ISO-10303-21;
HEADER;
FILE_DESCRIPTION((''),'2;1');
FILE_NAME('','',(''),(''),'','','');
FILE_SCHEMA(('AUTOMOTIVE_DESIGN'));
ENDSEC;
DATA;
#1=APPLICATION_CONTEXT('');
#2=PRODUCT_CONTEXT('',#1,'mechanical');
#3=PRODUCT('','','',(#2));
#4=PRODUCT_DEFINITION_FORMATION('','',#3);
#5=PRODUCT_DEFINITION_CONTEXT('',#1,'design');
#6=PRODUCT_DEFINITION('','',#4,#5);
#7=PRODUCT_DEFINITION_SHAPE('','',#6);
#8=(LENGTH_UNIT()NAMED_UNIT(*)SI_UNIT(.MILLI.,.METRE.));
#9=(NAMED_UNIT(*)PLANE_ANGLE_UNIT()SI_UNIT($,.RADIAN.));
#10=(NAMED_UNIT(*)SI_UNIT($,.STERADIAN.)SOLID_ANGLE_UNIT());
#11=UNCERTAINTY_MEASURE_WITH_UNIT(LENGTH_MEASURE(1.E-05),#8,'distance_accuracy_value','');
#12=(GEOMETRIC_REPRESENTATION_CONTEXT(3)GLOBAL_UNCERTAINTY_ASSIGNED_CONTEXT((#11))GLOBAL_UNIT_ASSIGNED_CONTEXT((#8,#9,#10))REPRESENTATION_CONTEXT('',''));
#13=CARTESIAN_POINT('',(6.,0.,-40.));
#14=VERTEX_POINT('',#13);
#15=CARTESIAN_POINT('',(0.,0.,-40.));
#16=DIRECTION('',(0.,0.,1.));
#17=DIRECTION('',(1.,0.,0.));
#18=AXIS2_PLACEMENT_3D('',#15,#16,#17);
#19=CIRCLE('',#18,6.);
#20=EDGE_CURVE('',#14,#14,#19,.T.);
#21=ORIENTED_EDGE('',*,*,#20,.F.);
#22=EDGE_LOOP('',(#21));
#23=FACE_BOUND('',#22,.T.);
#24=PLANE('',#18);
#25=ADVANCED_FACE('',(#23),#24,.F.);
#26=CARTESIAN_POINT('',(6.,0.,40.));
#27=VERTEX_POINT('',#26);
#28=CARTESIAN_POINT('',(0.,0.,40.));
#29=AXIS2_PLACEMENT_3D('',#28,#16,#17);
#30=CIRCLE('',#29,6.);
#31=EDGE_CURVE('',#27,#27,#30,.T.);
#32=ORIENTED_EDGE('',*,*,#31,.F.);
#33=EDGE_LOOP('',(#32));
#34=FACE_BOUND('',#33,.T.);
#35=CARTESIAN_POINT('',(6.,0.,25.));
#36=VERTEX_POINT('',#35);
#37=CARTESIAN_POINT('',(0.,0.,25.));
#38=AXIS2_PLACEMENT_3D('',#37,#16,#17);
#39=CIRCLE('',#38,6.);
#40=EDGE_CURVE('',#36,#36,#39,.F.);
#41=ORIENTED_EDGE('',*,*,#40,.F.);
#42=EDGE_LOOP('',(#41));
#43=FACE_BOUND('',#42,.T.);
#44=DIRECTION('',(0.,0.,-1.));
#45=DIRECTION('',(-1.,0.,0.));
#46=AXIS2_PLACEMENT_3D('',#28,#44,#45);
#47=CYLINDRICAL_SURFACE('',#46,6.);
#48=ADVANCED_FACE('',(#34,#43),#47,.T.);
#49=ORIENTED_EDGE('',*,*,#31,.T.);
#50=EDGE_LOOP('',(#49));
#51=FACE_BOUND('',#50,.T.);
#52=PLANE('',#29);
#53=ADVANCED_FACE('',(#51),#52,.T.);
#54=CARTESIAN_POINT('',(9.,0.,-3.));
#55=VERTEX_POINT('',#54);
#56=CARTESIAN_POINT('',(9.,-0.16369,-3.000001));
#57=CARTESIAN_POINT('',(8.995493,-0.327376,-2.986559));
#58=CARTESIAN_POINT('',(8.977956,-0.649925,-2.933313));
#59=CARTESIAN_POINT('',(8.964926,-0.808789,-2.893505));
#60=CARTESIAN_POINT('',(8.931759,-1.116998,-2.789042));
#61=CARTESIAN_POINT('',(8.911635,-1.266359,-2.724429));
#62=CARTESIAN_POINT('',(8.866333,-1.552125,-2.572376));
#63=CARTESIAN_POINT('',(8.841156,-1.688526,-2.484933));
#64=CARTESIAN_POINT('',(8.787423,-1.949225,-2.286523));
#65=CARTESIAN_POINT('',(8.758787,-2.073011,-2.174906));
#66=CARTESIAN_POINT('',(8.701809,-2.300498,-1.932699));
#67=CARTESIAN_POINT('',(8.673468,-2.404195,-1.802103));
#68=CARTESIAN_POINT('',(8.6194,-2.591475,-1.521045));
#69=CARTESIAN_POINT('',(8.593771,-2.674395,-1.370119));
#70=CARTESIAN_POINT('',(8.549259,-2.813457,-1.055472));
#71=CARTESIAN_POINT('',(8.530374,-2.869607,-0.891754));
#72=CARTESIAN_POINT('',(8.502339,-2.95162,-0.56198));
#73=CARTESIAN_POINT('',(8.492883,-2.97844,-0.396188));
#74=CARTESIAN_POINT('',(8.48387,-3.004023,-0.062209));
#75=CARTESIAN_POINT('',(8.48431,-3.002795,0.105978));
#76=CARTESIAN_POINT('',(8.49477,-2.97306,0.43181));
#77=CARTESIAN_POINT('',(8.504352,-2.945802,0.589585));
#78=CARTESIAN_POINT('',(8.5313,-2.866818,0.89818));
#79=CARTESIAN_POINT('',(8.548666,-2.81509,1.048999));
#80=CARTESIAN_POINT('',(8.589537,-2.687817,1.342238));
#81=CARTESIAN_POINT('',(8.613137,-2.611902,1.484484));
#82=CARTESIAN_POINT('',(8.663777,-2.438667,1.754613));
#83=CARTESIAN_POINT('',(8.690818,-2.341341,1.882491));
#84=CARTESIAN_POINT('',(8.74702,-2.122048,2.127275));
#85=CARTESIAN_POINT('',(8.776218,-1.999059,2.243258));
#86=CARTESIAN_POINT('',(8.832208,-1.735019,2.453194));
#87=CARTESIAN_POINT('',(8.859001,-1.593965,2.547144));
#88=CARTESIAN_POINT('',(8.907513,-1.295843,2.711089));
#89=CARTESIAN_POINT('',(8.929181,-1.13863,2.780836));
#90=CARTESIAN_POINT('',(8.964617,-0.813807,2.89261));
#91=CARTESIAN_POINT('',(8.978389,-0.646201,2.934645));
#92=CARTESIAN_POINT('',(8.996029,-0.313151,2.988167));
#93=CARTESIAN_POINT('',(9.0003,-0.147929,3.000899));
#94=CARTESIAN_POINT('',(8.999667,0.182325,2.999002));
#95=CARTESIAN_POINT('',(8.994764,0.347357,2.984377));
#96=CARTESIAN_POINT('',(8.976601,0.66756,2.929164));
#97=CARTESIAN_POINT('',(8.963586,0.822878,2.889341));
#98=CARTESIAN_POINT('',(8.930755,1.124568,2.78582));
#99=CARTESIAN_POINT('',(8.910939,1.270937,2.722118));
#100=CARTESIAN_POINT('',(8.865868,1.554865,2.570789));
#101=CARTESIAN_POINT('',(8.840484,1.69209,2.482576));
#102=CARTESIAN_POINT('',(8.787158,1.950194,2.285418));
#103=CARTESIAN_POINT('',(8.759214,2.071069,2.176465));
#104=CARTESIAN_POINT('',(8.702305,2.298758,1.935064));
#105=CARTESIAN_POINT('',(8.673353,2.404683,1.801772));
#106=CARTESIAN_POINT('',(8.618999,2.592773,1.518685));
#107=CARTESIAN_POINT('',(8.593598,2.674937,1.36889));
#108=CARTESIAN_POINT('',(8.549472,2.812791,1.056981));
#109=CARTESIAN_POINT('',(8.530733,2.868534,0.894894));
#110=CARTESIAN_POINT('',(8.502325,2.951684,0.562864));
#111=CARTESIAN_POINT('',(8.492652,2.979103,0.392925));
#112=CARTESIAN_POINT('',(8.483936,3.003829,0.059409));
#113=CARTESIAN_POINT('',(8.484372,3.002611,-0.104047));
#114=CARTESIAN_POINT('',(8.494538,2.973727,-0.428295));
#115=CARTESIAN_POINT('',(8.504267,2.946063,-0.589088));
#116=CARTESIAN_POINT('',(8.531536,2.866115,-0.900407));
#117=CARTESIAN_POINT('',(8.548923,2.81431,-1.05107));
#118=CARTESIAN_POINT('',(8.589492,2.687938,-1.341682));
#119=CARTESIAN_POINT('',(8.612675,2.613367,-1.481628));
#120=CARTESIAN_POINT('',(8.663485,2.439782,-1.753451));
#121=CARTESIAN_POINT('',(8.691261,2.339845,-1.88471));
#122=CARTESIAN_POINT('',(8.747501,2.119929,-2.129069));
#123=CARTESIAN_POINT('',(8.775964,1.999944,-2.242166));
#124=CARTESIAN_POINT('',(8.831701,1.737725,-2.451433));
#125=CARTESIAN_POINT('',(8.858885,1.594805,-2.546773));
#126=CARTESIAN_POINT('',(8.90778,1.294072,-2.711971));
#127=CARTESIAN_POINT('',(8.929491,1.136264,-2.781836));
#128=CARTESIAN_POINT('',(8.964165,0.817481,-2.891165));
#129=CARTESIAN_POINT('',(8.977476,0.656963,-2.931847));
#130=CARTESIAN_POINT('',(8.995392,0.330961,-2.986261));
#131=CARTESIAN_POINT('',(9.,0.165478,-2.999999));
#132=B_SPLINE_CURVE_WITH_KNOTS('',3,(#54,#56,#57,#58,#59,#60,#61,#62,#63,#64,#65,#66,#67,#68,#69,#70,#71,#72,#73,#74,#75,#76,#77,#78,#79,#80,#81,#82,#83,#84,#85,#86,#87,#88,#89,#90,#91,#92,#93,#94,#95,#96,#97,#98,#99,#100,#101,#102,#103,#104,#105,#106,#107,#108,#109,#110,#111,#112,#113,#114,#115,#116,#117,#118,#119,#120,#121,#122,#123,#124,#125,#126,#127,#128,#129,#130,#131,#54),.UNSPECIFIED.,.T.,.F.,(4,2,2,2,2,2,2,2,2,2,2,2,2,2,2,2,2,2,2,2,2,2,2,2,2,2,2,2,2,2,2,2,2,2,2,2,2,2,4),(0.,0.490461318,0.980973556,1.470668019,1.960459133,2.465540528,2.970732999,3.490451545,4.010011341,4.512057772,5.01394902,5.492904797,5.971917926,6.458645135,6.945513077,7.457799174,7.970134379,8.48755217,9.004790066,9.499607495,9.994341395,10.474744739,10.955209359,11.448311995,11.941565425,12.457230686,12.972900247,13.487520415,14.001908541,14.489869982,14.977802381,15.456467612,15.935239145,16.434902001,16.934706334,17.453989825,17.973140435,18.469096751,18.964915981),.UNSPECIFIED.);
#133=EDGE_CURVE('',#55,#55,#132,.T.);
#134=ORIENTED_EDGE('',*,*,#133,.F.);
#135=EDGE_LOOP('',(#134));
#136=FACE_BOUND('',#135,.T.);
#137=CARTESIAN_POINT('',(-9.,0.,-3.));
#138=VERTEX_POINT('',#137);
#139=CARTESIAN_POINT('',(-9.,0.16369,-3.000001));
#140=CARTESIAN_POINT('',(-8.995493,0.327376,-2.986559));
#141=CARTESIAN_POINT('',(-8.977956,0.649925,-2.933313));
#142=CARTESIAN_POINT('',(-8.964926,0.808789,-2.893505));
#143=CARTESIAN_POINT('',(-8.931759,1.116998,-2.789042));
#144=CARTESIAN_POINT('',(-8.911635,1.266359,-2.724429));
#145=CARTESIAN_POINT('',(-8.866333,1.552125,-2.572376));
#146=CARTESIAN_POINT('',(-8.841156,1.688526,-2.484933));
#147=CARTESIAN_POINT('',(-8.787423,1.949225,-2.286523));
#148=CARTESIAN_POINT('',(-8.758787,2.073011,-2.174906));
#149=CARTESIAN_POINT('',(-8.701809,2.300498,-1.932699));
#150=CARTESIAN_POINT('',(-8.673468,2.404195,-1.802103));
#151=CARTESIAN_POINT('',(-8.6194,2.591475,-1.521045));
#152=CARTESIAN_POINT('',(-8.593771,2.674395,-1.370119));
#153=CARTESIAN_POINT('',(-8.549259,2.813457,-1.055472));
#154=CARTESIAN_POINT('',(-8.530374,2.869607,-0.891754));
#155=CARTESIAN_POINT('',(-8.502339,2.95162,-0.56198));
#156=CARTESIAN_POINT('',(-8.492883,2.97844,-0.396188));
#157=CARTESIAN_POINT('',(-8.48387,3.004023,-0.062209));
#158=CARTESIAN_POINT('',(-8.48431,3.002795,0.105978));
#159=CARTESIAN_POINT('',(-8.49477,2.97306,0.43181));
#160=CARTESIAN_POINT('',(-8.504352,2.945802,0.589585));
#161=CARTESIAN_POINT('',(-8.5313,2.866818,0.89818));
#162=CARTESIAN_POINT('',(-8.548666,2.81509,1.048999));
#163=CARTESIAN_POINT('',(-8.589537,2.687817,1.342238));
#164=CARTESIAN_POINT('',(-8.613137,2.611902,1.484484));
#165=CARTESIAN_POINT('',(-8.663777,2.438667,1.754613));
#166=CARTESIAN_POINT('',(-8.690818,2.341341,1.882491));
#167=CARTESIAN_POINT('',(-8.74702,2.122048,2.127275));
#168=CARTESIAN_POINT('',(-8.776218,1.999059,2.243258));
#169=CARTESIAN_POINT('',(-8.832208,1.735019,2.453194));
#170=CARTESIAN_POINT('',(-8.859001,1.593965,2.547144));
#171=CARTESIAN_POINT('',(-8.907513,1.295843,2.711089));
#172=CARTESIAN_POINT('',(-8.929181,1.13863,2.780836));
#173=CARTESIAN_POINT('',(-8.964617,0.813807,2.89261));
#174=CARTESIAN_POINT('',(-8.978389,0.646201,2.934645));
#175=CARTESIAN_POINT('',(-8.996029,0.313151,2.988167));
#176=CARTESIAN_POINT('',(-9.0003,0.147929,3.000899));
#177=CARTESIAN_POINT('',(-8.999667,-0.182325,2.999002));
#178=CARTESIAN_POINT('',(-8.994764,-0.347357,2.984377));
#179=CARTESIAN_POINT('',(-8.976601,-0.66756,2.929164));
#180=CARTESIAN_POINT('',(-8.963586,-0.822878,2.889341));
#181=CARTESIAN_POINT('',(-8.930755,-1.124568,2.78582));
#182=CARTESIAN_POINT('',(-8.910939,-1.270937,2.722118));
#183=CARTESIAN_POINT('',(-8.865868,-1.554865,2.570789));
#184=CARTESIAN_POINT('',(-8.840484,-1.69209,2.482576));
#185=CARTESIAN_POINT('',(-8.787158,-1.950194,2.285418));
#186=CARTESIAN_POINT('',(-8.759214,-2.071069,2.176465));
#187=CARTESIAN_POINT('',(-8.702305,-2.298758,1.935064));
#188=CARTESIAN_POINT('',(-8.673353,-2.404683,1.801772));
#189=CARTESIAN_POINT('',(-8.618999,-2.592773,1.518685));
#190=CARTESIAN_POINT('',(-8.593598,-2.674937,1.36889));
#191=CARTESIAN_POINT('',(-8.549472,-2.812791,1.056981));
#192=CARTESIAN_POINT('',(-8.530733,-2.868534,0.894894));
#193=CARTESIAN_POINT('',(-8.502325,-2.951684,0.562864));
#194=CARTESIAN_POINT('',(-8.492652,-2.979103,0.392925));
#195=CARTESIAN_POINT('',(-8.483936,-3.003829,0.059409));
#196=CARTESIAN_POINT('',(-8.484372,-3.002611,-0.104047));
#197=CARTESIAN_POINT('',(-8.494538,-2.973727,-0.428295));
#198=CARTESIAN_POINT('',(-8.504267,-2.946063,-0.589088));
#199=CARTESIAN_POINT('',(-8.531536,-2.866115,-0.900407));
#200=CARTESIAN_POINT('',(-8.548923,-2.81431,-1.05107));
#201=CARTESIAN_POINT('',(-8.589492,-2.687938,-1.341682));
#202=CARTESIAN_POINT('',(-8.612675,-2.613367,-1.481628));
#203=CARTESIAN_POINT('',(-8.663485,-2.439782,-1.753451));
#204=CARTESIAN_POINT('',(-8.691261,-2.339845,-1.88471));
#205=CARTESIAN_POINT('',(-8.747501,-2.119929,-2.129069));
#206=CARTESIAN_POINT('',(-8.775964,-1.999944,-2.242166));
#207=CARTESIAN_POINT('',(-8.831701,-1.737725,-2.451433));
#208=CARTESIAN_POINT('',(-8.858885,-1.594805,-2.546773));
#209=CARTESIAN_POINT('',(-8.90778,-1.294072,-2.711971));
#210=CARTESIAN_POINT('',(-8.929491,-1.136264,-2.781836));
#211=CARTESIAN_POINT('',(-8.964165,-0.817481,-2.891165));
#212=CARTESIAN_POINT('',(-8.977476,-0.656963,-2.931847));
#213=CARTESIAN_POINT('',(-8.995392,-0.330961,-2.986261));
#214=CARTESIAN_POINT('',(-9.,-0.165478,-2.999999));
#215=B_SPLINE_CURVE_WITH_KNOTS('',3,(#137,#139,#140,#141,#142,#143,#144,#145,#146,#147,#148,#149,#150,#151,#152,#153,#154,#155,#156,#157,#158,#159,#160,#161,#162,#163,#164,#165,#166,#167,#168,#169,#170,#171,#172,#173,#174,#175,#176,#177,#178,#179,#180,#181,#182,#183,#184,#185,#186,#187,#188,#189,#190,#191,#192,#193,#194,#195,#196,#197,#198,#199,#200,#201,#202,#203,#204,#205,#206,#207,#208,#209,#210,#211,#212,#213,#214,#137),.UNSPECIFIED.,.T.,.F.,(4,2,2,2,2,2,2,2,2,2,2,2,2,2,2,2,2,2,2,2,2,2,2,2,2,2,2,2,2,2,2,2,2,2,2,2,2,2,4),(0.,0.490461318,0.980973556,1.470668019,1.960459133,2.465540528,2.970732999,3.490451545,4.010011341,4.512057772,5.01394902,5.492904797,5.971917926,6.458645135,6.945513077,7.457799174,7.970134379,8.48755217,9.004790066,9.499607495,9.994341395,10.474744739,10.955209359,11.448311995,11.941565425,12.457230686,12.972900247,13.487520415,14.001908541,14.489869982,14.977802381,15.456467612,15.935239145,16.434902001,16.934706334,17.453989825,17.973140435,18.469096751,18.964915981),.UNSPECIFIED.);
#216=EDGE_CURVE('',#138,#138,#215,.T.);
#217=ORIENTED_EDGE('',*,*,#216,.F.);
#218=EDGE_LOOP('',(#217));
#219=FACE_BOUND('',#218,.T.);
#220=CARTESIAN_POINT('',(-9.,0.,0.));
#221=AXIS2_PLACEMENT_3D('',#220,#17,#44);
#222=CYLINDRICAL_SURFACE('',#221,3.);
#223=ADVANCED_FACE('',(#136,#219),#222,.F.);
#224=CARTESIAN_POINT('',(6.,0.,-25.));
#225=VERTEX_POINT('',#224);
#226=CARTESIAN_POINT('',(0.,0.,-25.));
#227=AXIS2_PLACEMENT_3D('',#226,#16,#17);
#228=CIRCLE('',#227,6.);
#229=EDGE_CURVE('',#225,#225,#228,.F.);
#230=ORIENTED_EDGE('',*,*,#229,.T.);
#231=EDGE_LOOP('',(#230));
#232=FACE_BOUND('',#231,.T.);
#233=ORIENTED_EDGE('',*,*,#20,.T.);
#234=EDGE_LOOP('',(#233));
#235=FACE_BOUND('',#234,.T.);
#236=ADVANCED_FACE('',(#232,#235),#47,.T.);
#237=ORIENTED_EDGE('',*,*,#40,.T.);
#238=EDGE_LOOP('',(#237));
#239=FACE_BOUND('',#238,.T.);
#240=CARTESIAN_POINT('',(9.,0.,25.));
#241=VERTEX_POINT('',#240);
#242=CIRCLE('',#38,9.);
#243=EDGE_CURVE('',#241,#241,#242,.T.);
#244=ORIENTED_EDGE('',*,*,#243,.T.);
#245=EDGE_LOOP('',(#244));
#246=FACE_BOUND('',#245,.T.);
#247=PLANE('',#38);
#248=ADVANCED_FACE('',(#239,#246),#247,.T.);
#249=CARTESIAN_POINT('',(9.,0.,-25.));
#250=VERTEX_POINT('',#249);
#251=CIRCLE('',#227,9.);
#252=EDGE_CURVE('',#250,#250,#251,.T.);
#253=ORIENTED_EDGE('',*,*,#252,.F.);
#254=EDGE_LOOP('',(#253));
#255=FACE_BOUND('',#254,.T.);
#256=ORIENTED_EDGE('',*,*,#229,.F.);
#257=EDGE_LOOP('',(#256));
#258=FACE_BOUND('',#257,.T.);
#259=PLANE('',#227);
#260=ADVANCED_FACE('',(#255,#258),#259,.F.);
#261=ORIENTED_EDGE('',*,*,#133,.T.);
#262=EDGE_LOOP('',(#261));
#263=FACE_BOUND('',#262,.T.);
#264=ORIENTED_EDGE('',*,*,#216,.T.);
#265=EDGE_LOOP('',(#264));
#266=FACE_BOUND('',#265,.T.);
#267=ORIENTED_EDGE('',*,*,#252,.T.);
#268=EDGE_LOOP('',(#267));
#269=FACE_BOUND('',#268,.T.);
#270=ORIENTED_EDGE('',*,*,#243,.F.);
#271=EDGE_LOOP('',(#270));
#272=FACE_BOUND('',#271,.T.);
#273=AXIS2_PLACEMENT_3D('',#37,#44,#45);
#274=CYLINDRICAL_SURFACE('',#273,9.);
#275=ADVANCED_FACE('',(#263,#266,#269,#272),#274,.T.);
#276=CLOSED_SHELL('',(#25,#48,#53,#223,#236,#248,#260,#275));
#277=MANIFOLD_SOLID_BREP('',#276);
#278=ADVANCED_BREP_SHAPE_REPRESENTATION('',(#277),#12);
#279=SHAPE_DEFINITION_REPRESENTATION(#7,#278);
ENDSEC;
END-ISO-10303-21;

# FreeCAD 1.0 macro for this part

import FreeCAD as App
import Part
import Sketcher

V = App.Vector
Q = App.Units.Quantity

doc = App.newDocument("Part")
body = doc.addObject("PartDesign::Body", "Body")

# Sketch on XY plane
sketch1 = body.newObject("Sketcher::SketchObject", "Sketch")
sketch1.AttachmentSupport = (doc.getObject("XY_Plane"), [""])
sketch1.MapMode = "FlatFace"
sketch1.addGeometry(Part.Circle(V(0, 0, 0), V(0, 0, 1), 9), False)
sketch1.addConstraint(Sketcher.Constraint("Coincident", 0, 3, -1, 1))
sketch1.addConstraint(Sketcher.Constraint("Diameter", 0, Q("18 mm")))
pad1 = body.newObject("PartDesign::Pad", "Pad")
pad1.Profile = sketch1
pad1.Length = 50
pad1.Midplane = True

# Sketch on XY plane
sketch2 = body.newObject("Sketcher::SketchObject", "Sketch001")
sketch2.AttachmentSupport = (doc.getObject("XY_Plane"), [""])
sketch2.MapMode = "FlatFace"
sketch2.addGeometry(Part.Circle(V(0, 0, 0), V(0, 0, 1), 6), False)
sketch2.addConstraint(Sketcher.Constraint("Coincident", 0, 3, -1, 1))
sketch2.addConstraint(Sketcher.Constraint("Diameter", 0, Q("12 mm")))
pad2 = body.newObject("PartDesign::Pad", "Pad001")
pad2.Profile = sketch2
pad2.Length = 80
pad2.Midplane = True

# Sketch on YZ plane
sketch3 = body.newObject("Sketcher::SketchObject", "Sketch002")
sketch3.AttachmentSupport = (doc.getObject("YZ_Plane"), [""])
sketch3.MapMode = "FlatFace"
sketch3.addGeometry(Part.Circle(V(0, 0, 0), V(0, 0, 1), 3), False)
sketch3.addConstraint(Sketcher.Constraint("Coincident", 0, 3, -1, 1))
sketch3.addConstraint(Sketcher.Constraint("Diameter", 0, Q("6 mm")))
pocket1 = body.newObject("PartDesign::Pocket", "Pocket")
pocket1.Profile = sketch3
pocket1.Type = "ThroughAll"
pocket1.Midplane = True

doc.recompute()
